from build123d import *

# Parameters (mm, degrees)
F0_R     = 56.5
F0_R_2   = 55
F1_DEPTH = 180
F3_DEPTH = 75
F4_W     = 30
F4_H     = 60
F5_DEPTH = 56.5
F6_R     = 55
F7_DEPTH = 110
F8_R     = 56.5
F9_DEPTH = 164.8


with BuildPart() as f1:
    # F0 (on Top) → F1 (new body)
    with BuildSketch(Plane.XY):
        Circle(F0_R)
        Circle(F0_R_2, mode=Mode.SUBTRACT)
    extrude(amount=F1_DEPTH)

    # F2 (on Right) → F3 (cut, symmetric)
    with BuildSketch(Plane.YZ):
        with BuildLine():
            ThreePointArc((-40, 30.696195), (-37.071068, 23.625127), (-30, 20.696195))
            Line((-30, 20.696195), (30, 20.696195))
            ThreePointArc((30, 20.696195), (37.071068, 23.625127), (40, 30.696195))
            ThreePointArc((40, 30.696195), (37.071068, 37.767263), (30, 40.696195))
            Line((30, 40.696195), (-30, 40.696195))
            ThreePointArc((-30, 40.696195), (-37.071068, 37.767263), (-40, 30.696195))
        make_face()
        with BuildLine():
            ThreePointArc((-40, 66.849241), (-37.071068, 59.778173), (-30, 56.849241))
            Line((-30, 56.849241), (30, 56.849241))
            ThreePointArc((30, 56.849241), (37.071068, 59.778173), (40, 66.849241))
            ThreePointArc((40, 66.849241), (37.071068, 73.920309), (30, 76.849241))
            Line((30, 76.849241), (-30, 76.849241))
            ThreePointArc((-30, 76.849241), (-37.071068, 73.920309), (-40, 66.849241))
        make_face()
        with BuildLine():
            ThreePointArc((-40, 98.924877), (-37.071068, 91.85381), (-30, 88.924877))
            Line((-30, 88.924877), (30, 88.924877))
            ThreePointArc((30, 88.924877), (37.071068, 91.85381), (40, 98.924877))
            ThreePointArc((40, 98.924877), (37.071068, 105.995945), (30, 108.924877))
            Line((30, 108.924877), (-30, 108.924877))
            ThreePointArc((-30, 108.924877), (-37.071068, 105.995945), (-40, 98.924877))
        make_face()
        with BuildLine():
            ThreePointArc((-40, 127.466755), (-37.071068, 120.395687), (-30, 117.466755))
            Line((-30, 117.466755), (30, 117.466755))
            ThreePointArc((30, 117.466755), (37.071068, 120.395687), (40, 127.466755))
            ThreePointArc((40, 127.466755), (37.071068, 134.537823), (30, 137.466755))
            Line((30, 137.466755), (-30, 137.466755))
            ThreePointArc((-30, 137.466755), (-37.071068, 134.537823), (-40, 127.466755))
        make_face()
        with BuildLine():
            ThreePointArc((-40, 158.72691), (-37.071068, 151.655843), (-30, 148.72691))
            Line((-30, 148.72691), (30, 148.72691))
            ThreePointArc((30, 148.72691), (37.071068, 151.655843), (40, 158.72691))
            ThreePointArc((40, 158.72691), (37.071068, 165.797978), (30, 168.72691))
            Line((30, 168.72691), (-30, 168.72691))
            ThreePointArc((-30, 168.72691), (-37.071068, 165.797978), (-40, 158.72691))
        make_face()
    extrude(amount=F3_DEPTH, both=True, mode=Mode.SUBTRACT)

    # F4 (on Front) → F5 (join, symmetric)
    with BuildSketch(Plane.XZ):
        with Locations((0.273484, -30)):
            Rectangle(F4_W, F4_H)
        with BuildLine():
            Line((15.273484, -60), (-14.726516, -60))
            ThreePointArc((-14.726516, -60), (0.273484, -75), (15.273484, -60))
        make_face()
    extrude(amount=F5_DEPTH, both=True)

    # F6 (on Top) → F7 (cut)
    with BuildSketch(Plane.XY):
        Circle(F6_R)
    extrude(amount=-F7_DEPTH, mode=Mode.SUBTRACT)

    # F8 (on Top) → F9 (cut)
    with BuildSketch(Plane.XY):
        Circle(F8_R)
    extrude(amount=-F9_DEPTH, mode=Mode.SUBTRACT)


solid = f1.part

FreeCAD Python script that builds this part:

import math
import FreeCAD as App
import Part
import Sketcher
Q = App.Units.Quantity

doc = App.newDocument("Part")
body = doc.addObject("PartDesign::Body", "Body")
body.AllowCompound = True

sketch1 = body.newObject("Sketcher::SketchObject", "Sketch")
sketch1.AttachmentSupport = (doc.getObject("XY_Plane"), [""])
sketch1.MapMode = "FlatFace"
sketch1.addGeometry([
    Part.Circle(App.Vector(0, 0, 0), App.Vector(0, 0, 1), 56),
    Part.Circle(App.Vector(0, 0, 0), App.Vector(0, 0, 1), 55),
], False)
sketch1.addConstraint([
    Sketcher.Constraint("Coincident", 0, 3, -1, 1),
    Sketcher.Constraint("Coincident", 1, 3, -1, 1),
    Sketcher.Constraint("Diameter", 0, Q("113 mm")),
    Sketcher.Constraint("Diameter", 1, Q("110 mm")),
])
pad1 = body.newObject("PartDesign::Pad", "Pad")
pad1.Profile = sketch1
pad1.Length = 180

sketch2 = body.newObject("Sketcher::SketchObject", "Sketch001")
sketch2.AttachmentSupport = (doc.getObject("YZ_Plane"), [""])
sketch2.MapMode = "FlatFace"
sketch2.addGeometry([
    Part.ArcOfCircle(Part.Circle(App.Vector(-30, 31, 0), App.Vector(0, 0, 1), 10), math.radians(180), math.radians(270)),
    Part.LineSegment(App.Vector(-30, 21, 0), App.Vector(30, 21, 0)),
    Part.ArcOfCircle(Part.Circle(App.Vector(30, 31, 0), App.Vector(0, 0, 1), 10), math.radians(-90), math.radians(0)),
    Part.ArcOfCircle(Part.Circle(App.Vector(30, 31, 0), App.Vector(0, 0, 1), 10), math.radians(0), math.radians(90)),
    Part.LineSegment(App.Vector(30, 41, 0), App.Vector(-30, 41, 0)),
    Part.ArcOfCircle(Part.Circle(App.Vector(-30, 31, 0), App.Vector(0, 0, 1), 10), math.radians(90), math.radians(180)),
    Part.ArcOfCircle(Part.Circle(App.Vector(-30, 67, 0), App.Vector(0, 0, 1), 10), math.radians(180), math.radians(270)),
    Part.LineSegment(App.Vector(-30, 57, 0), App.Vector(30, 57, 0)),
    Part.ArcOfCircle(Part.Circle(App.Vector(30, 67, 0), App.Vector(0, 0, 1), 10), math.radians(-90), math.radians(0)),
    Part.ArcOfCircle(Part.Circle(App.Vector(30, 67, 0), App.Vector(0, 0, 1), 10), math.radians(0), math.radians(90)),
    Part.LineSegment(App.Vector(30, 77, 0), App.Vector(-30, 77, 0)),
    Part.ArcOfCircle(Part.Circle(App.Vector(-30, 67, 0), App.Vector(0, 0, 1), 10), math.radians(90), math.radians(180)),
    Part.ArcOfCircle(Part.Circle(App.Vector(-30, 99, 0), App.Vector(0, 0, 1), 10), math.radians(-180), math.radians(-90)),
    Part.LineSegment(App.Vector(-30, 89, 0), App.Vector(30, 89, 0)),
    Part.ArcOfCircle(Part.Circle(App.Vector(30, 99, 0), App.Vector(0, 0, 1), 10), math.radians(-90), math.radians(0)),
    Part.ArcOfCircle(Part.Circle(App.Vector(30, 99, 0), App.Vector(0, 0, 1), 10), math.radians(0), math.radians(90)),
    Part.LineSegment(App.Vector(30, 109, 0), App.Vector(-30, 109, 0)),
    Part.ArcOfCircle(Part.Circle(App.Vector(-30, 99, 0), App.Vector(0, 0, 1), 10), math.radians(90), math.radians(180)),
    Part.ArcOfCircle(Part.Circle(App.Vector(-30, 127, 0), App.Vector(0, 0, 1), 10), math.radians(180), math.radians(270)),
    Part.LineSegment(App.Vector(-30, 117, 0), App.Vector(30, 117, 0)),
    Part.ArcOfCircle(Part.Circle(App.Vector(30, 127, 0), App.Vector(0, 0, 1), 10), math.radians(-90), math.radians(0)),
    Part.ArcOfCircle(Part.Circle(App.Vector(30, 127, 0), App.Vector(0, 0, 1), 10), math.radians(0), math.radians(90)),
    Part.LineSegment(App.Vector(30, 137, 0), App.Vector(-30, 137, 0)),
    Part.ArcOfCircle(Part.Circle(App.Vector(-30, 127, 0), App.Vector(0, 0, 1), 10), math.radians(90), math.radians(180)),
    Part.ArcOfCircle(Part.Circle(App.Vector(-30, 159, 0), App.Vector(0, 0, 1), 10), math.radians(-180), math.radians(-90)),
    Part.LineSegment(App.Vector(-30, 149, 0), App.Vector(30, 149, 0)),
    Part.ArcOfCircle(Part.Circle(App.Vector(30, 159, 0), App.Vector(0, 0, 1), 10), math.radians(-90), math.radians(0)),
    Part.ArcOfCircle(Part.Circle(App.Vector(30, 159, 0), App.Vector(0, 0, 1), 10), math.radians(0), math.radians(90)),
    Part.LineSegment(App.Vector(30, 169, 0), App.Vector(-30, 169, 0)),
    Part.ArcOfCircle(Part.Circle(App.Vector(-30, 159, 0), App.Vector(0, 0, 1), 10), math.radians(90), math.radians(180)),
], False)
sketch2.addConstraint([
    Sketcher.Constraint("Tangent", 0, 2, 1, 1),
    Sketcher.Constraint("Tangent", 1, 2, 2, 1),
    Sketcher.Constraint("Tangent", 2, 2, 3, 1),
    Sketcher.Constraint("Tangent", 3, 2, 4, 1),
    Sketcher.Constraint("Tangent", 4, 2, 5, 1),
    Sketcher.Constraint("Tangent", 5, 2, 0, 1),
    Sketcher.Constraint("Tangent", 6, 2, 7, 1),
    Sketcher.Constraint("Tangent", 7, 2, 8, 1),
    Sketcher.Constraint("Tangent", 8, 2, 9, 1),
    Sketcher.Constraint("Tangent", 9, 2, 10, 1),
    Sketcher.Constraint("Tangent", 10, 2, 11, 1),
    Sketcher.Constraint("Tangent", 11, 2, 6, 1),
    Sketcher.Constraint("Tangent", 12, 2, 13, 1),
    Sketcher.Constraint("Tangent", 13, 2, 14, 1),
    Sketcher.Constraint("Tangent", 14, 2, 15, 1),
    Sketcher.Constraint("Tangent", 15, 2, 16, 1),
    Sketcher.Constraint("Tangent", 16, 2, 17, 1),
    Sketcher.Constraint("Tangent", 17, 2, 12, 1),
    Sketcher.Constraint("Tangent", 18, 2, 19, 1),
    Sketcher.Constraint("Tangent", 19, 2, 20, 1),
    Sketcher.Constraint("Tangent", 20, 2, 21, 1),
    Sketcher.Constraint("Tangent", 21, 2, 22, 1),
    Sketcher.Constraint("Tangent", 22, 2, 23, 1),
    Sketcher.Constraint("Tangent", 23, 2, 18, 1),
    Sketcher.Constraint("Tangent", 24, 2, 25, 1),
    Sketcher.Constraint("Tangent", 25, 2, 26, 1),
    Sketcher.Constraint("Tangent", 26, 2, 27, 1),
    Sketcher.Constraint("Tangent", 27, 2, 28, 1),
    Sketcher.Constraint("Tangent", 28, 2, 29, 1),
    Sketcher.Constraint("Tangent", 29, 2, 24, 1),
    Sketcher.Constraint("Horizontal", 1),
    Sketcher.Constraint("Horizontal", 4),
    Sketcher.Constraint("Horizontal", 7),
    Sketcher.Constraint("Horizontal", 10),
    Sketcher.Constraint("Horizontal", 13),
    Sketcher.Constraint("Horizontal", 16),
    Sketcher.Constraint("Horizontal", 19),
    Sketcher.Constraint("Horizontal", 22),
    Sketcher.Constraint("Horizontal", 25),
    Sketcher.Constraint("Horizontal", 28),
    Sketcher.Constraint("Equal", 0, 2),
    Sketcher.Constraint("Equal", 2, 3),
    Sketcher.Constraint("Equal", 5, 6),
    Sketcher.Constraint("Equal", 6, 8),
    Sketcher.Constraint("Equal", 8, 9),
    Sketcher.Constraint("Equal", 11, 12),
    Sketcher.Constraint("Equal", 12, 14),
    Sketcher.Constraint("Equal", 14, 15),
    Sketcher.Constraint("Equal", 17, 18),
    Sketcher.Constraint("Equal", 18, 20),
    Sketcher.Constraint("Equal", 20, 21),
    Sketcher.Constraint("Equal", 23, 24),
    Sketcher.Constraint("Equal", 24, 26),
    Sketcher.Constraint("Equal", 26, 27),
    Sketcher.Constraint("Symmetric", 2, 2, 5, 2, -2),
    Sketcher.Constraint("Symmetric", 8, 2, 11, 2, -2),
    Sketcher.Constraint("Symmetric", 14, 2, 17, 2, -2),
    Sketcher.Constraint("Symmetric", 20, 2, 23, 2, -2),
    Sketcher.Constraint("Symmetric", 26, 2, 29, 2, -2),
    Sketcher.Constraint("Horizontal", 5, 3, 2, 2),
    Sketcher.Constraint("Horizontal", 11, 3, 8, 2),
    Sketcher.Constraint("Horizontal", 17, 3, 14, 2),
    Sketcher.Constraint("Horizontal", 23, 3, 20, 2),
    Sketcher.Constraint("Horizontal", 29, 3, 26, 2),
    Sketcher.Constraint("Vertical", 5, 3, 6, 3),
    Sketcher.Constraint("Vertical", 11, 3, 12, 3),
    Sketcher.Constraint("Vertical", 17, 3, 18, 3),
    Sketcher.Constraint("Vertical", 23, 3, 24, 3),
    Sketcher.Constraint("Radius", 0, Q("9.999999 mm")),
    Sketcher.Constraint("DistanceX", 1, 1, 1, 2, Q("60 mm")),
    Sketcher.Constraint("DistanceY", -1, 1, 6, 3, Q("66.84924 mm")),
    Sketcher.Constraint("DistanceY", -1, 1, 12, 3, Q("98.924878 mm")),
    Sketcher.Constraint("DistanceY", -1, 1, 24, 3, Q("158.726911 mm")),
    Sketcher.Constraint("DistanceY", 15, 2, 21, 3, Q("18.541879 mm")),
    Sketcher.Constraint("DistanceY", -1, 1, 0, 3, Q("30.696194 mm")),
])
pocket1 = body.newObject("PartDesign::Pocket", "Pocket")
pocket1.Profile = sketch2
pocket1.Length = 150
pocket1.Midplane = True

sketch3 = body.newObject("Sketcher::SketchObject", "Sketch002")
sketch3.AttachmentSupport = (doc.getObject("XZ_Plane"), [""])
sketch3.MapMode = "FlatFace"
sketch3.addGeometry([
    Part.LineSegment(App.Vector(-15, 0, 0), App.Vector(-15, -60, 0)),
    Part.ArcOfCircle(Part.Circle(App.Vector(0, -60, 0), App.Vector(0, 0, 1), 15), math.radians(180), math.radians(360)),
    Part.LineSegment(App.Vector(15, -60, 0), App.Vector(15, 0, 0)),
    Part.LineSegment(App.Vector(15, 0, 0), App.Vector(-15, 0, 0)),
], False)
sketch3.addConstraint([
    Sketcher.Constraint("Tangent", 0, 2, 1, 1),
    Sketcher.Constraint("Tangent", 1, 2, 2, 1),
    Sketcher.Constraint("Coincident", 2, 2, 3, 1),
    Sketcher.Constraint("Coincident", 3, 2, 0, 1),
    Sketcher.Constraint("Vertical", 0),
    Sketcher.Constraint("Vertical", 2),
    Sketcher.Constraint("Horizontal", 3),
    Sketcher.Constraint("PointOnObject", 2, 2, -1),
    Sketcher.Constraint("Radius", 1, Q("15 mm")),
    Sketcher.Constraint("DistanceY", 0, 2, 0, 1, Q("60 mm")),
    Sketcher.Constraint("DistanceX", -1, 1, 1, 3, Q("0.273484 mm")),
])
pad2 = body.newObject("PartDesign::Pad", "Pad001")
pad2.Profile = sketch3
pad2.Length = 113
pad2.Midplane = True

sketch4 = body.newObject("Sketcher::SketchObject", "Sketch003")
sketch4.AttachmentSupport = (doc.getObject("XY_Plane"), [""])
sketch4.MapMode = "FlatFace"
sketch4.addGeometry(Part.Circle(App.Vector(0, 0, 0), App.Vector(0, 0, 1), 55), False)
sketch4.addConstraint([
    Sketcher.Constraint("Coincident", 0, 3, -1, 1),
    Sketcher.Constraint("Diameter", 0, Q("110 mm")),
])
pocket2 = body.newObject("PartDesign::Pocket", "Pocket001")
pocket2.Profile = sketch4
pocket2.Length = 110

sketch5 = body.newObject("Sketcher::SketchObject", "Sketch004")
sketch5.AttachmentSupport = (doc.getObject("XY_Plane"), [""])
sketch5.MapMode = "FlatFace"
sketch5.addGeometry(Part.Circle(App.Vector(0, 0, 0), App.Vector(0, 0, 1), 56), False)
sketch5.addConstraint([
    Sketcher.Constraint("Coincident", 0, 3, -1, 1),
    Sketcher.Constraint("Diameter", 0, Q("113 mm")),
])
pocket3 = body.newObject("PartDesign::Pocket", "Pocket002")
pocket3.Profile = sketch5
pocket3.Length = 164.8

doc.recompute()
